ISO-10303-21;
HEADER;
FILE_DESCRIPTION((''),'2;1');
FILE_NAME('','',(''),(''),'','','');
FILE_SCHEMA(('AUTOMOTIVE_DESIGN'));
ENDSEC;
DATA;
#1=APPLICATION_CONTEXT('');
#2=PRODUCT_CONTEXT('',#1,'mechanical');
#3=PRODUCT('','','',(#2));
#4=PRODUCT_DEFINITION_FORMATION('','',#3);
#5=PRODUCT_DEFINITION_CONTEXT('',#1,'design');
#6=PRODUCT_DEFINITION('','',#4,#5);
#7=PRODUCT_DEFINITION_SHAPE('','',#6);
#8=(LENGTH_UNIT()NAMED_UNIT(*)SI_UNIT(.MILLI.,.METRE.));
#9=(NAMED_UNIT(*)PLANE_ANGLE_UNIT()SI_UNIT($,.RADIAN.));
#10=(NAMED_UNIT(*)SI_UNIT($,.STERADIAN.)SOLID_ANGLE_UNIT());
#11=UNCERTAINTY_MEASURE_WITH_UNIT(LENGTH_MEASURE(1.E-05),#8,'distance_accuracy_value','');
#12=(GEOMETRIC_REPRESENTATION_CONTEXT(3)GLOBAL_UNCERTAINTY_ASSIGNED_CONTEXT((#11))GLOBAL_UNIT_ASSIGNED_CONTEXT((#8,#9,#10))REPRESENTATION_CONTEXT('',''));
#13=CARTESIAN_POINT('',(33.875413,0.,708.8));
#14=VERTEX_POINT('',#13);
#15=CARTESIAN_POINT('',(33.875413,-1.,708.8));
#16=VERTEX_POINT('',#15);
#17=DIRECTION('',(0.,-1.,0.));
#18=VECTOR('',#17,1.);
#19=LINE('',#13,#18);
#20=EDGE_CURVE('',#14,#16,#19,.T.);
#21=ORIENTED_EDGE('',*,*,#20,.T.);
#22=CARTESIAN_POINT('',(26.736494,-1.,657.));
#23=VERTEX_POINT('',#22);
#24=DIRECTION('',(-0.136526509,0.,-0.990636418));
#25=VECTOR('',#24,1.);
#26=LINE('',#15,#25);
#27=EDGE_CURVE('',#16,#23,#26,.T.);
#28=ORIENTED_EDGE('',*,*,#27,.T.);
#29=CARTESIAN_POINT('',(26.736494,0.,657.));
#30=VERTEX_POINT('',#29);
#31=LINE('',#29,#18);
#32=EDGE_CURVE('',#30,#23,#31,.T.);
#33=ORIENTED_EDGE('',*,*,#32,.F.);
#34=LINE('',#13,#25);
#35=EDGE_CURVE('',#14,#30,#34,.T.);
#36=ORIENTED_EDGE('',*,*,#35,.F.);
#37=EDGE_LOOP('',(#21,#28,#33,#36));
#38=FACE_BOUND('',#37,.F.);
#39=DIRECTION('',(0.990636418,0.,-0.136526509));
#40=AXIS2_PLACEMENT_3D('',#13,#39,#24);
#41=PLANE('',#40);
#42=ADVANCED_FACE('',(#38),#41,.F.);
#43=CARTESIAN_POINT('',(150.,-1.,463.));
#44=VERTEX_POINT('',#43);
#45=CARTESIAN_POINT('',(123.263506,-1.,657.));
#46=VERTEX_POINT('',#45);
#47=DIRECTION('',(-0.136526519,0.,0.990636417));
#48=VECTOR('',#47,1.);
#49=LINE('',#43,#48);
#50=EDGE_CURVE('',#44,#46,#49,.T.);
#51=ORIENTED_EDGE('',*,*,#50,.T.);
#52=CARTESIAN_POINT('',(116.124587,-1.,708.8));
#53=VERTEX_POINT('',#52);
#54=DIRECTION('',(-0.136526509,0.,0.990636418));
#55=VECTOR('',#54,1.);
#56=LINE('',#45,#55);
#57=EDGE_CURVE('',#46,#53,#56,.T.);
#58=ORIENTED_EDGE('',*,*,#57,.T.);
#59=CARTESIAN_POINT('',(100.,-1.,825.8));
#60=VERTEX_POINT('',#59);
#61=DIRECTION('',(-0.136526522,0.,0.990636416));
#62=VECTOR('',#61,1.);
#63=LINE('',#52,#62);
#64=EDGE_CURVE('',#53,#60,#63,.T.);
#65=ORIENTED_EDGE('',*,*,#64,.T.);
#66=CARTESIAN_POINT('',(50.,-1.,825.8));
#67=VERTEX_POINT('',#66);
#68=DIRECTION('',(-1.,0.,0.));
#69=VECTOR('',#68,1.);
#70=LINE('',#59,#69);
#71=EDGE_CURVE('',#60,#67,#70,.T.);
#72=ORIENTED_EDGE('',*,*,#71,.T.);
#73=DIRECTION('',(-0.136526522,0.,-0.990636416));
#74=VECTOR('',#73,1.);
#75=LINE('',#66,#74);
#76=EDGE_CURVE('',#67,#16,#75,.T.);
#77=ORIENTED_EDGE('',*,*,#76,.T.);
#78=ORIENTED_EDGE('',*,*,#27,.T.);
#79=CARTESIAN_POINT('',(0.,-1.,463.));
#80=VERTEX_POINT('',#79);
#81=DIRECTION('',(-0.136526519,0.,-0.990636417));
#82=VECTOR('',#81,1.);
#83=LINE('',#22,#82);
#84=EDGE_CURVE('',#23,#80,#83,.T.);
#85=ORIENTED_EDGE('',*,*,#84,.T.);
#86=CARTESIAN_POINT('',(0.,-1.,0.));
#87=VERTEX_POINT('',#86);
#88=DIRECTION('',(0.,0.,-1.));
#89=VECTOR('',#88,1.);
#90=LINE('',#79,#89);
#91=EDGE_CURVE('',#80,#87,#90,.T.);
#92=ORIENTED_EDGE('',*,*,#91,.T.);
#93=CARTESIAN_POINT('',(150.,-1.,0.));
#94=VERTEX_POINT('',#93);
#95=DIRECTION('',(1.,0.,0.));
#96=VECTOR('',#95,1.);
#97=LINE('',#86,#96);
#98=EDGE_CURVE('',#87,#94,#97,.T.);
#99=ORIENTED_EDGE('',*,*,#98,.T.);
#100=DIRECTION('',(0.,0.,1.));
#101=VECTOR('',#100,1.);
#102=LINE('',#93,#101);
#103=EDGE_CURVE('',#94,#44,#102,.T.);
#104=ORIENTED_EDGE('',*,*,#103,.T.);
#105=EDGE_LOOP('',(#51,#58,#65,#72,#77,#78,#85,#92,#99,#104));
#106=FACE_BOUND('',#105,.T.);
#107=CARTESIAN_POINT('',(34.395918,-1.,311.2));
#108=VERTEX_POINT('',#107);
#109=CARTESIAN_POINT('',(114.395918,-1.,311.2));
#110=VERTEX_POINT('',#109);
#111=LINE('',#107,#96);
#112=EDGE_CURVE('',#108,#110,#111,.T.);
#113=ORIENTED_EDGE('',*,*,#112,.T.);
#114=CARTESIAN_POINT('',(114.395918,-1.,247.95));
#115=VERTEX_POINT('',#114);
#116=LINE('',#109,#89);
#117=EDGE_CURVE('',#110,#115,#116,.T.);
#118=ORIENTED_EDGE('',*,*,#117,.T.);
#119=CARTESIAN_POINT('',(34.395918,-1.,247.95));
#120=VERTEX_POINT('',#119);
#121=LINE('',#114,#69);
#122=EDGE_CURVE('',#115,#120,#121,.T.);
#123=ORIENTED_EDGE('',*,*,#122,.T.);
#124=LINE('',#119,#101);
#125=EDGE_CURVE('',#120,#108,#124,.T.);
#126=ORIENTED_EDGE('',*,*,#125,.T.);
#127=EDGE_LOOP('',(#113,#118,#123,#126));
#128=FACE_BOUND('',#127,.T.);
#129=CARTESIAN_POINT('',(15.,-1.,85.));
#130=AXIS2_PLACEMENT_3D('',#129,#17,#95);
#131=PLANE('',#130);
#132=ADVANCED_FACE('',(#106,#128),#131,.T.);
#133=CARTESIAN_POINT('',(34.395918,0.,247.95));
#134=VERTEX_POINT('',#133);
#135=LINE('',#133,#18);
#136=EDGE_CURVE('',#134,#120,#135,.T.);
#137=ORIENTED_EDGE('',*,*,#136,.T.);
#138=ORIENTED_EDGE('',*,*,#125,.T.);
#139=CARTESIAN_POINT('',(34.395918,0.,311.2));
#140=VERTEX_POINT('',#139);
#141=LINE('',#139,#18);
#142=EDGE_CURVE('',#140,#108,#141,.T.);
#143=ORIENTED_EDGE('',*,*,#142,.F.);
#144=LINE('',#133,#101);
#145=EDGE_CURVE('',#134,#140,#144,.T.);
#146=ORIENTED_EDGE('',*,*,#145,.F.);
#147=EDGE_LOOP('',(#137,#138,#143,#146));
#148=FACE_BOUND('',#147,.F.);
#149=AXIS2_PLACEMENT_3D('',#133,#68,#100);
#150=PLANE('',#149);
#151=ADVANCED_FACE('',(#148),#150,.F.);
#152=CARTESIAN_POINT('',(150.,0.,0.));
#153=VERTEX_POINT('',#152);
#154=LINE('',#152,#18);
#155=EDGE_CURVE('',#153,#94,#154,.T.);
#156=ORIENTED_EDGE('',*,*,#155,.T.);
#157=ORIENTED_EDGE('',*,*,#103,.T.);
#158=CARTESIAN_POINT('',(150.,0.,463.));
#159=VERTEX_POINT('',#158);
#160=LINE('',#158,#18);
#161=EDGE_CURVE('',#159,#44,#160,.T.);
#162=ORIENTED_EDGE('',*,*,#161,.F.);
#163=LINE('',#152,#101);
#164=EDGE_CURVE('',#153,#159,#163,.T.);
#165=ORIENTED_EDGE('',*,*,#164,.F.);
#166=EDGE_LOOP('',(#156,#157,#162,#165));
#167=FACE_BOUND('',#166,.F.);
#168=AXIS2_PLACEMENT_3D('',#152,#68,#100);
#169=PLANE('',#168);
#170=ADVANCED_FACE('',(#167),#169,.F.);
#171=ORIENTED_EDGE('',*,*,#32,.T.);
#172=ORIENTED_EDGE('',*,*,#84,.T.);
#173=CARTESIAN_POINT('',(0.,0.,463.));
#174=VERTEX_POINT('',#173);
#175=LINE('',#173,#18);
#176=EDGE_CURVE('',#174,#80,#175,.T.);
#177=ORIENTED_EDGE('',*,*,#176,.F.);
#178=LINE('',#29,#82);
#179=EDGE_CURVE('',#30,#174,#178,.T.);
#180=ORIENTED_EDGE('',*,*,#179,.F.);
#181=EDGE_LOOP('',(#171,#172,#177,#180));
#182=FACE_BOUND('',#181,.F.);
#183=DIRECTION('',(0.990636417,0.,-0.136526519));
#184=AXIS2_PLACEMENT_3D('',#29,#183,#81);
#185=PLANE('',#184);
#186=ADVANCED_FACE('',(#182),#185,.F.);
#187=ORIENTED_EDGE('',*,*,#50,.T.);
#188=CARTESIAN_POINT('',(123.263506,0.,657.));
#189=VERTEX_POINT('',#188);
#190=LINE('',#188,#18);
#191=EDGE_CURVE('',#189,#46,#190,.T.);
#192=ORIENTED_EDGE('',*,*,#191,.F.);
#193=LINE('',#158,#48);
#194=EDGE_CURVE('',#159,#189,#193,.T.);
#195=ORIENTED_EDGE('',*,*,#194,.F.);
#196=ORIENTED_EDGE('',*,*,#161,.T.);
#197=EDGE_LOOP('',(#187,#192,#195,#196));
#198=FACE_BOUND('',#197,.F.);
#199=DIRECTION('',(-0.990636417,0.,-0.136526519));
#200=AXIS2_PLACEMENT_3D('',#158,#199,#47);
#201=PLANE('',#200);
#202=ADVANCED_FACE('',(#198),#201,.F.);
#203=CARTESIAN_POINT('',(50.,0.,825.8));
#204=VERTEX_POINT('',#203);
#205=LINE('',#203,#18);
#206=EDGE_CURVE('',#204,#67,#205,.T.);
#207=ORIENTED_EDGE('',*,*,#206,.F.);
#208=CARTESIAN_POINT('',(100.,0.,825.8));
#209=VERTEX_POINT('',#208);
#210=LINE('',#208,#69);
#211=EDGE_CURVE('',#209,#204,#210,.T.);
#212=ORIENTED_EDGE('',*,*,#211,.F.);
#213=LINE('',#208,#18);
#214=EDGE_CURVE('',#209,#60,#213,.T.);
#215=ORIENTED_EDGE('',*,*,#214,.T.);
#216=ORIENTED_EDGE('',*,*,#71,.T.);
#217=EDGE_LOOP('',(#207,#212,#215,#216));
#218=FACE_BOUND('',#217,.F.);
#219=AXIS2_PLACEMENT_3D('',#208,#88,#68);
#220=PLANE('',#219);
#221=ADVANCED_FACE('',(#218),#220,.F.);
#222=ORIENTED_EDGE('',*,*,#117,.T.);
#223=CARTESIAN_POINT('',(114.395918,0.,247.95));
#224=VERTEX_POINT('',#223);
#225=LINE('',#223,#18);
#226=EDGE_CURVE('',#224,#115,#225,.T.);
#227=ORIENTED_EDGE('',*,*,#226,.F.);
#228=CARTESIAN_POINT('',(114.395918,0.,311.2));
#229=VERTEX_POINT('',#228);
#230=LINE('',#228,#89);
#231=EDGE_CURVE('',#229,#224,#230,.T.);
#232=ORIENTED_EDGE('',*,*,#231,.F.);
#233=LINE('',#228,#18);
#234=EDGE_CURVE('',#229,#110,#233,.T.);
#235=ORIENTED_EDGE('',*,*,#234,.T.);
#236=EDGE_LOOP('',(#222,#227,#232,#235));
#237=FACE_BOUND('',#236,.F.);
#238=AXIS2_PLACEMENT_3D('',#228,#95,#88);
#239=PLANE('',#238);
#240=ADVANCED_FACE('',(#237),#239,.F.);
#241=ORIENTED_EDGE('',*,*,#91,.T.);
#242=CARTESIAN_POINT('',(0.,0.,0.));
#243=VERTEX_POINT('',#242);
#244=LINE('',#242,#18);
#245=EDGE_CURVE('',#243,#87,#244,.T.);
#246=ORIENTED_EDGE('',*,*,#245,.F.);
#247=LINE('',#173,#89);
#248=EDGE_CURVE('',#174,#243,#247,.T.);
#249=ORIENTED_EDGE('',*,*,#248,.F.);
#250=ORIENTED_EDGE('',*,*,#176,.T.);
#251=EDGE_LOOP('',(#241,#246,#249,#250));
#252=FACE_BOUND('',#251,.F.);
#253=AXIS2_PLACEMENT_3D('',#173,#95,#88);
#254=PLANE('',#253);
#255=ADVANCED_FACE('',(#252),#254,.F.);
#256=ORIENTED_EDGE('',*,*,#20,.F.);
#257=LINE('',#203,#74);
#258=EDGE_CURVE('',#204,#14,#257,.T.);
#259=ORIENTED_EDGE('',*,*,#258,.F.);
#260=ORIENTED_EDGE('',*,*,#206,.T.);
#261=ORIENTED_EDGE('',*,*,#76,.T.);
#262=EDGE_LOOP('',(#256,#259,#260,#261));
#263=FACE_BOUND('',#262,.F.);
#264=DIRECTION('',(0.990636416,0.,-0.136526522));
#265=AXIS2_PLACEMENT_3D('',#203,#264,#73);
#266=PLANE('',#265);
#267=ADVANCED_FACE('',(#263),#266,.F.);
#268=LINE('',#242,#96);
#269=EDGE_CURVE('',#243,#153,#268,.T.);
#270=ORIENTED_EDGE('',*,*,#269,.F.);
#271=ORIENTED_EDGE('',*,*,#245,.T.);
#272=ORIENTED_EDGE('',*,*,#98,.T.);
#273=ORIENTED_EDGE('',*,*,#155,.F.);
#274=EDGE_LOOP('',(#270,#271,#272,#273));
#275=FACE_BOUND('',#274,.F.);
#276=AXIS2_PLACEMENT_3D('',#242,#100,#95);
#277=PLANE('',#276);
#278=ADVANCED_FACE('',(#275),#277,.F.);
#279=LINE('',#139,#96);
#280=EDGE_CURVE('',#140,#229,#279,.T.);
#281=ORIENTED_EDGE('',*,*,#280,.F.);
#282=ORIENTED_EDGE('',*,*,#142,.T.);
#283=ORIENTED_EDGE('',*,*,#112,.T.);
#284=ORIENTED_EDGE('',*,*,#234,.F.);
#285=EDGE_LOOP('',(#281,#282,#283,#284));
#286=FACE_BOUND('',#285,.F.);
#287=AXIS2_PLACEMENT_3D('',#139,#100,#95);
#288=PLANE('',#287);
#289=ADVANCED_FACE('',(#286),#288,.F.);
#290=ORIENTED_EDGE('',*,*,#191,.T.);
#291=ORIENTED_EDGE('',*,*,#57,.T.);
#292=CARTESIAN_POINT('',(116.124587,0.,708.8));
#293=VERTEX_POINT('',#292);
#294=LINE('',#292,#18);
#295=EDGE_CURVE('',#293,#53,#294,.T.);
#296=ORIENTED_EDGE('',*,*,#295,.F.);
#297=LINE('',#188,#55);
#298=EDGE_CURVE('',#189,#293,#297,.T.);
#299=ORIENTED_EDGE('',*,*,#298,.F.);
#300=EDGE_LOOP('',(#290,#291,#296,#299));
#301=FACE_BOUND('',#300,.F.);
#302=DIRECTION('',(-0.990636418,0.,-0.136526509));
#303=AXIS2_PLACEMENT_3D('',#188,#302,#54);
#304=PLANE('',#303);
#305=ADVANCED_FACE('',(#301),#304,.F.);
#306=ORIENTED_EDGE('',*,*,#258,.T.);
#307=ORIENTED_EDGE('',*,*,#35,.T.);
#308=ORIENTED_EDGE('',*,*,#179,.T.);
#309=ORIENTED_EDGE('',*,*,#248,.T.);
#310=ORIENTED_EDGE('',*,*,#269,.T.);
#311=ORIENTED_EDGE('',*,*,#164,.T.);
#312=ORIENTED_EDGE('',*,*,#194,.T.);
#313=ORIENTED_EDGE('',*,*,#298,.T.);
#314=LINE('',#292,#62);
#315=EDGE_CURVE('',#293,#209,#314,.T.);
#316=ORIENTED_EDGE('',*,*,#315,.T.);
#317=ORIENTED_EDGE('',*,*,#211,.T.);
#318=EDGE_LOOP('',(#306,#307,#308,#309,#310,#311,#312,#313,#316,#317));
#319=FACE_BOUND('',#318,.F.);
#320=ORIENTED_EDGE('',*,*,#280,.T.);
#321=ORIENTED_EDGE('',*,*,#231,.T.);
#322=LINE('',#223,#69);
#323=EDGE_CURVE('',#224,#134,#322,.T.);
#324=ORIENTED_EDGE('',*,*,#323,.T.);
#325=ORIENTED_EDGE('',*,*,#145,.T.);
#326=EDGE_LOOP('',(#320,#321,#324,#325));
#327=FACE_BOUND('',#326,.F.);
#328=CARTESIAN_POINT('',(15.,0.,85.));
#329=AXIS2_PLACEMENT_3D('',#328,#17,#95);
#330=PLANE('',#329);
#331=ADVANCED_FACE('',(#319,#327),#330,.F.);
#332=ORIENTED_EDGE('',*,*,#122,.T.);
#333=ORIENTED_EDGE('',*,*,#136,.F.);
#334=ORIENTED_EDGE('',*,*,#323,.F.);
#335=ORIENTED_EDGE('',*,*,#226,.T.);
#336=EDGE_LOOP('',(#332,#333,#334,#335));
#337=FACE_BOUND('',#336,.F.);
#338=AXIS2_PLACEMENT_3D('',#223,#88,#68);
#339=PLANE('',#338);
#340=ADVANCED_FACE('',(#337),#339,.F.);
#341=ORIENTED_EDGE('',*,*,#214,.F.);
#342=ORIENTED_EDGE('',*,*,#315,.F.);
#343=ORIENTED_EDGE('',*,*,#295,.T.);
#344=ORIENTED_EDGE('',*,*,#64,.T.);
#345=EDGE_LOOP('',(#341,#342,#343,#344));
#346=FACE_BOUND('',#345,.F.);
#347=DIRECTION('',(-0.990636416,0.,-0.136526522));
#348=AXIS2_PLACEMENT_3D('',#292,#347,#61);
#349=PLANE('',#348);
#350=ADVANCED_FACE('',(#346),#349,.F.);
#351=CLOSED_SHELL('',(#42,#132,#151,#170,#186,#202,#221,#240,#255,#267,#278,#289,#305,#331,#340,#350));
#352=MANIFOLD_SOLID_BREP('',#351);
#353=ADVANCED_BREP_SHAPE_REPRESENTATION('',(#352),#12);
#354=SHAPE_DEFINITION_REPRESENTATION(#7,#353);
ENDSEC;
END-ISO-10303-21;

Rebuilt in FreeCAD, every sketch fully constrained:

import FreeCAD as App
import Part
import Sketcher
from FreeCAD import Vector
Q = App.Units.Quantity

doc = App.newDocument("Part")
body = doc.addObject("PartDesign::Body", "Body")

# Sketch on XZ plane
sketch1 = body.newObject("Sketcher::SketchObject", "Sketch")
sketch1.AttachmentSupport = (doc.getObject("XZ_Plane"), [""])
sketch1.MapMode = "FlatFace"
sketch1.addGeometry(Part.LineSegment(Vector(0, 0, 0), Vector(150, 0, 0)), False)
sketch1.addGeometry(Part.LineSegment(Vector(150, 0, 0), Vector(150, 463, 0)), False)
sketch1.addGeometry(Part.LineSegment(Vector(150, 463, 0), Vector(123, 657, 0)), False)
sketch1.addGeometry(Part.LineSegment(Vector(123, 657, 0), Vector(116, 709, 0)), False)
sketch1.addGeometry(Part.LineSegment(Vector(116, 709, 0), Vector(100, 826, 0)), False)
sketch1.addGeometry(Part.LineSegment(Vector(100, 826, 0), Vector(50, 826, 0)), False)
sketch1.addGeometry(Part.LineSegment(Vector(50, 826, 0), Vector(34, 709, 0)), False)
sketch1.addGeometry(Part.LineSegment(Vector(34, 709, 0), Vector(27, 657, 0)), False)
sketch1.addGeometry(Part.LineSegment(Vector(27, 657, 0), Vector(0, 463, 0)), False)
sketch1.addGeometry(Part.LineSegment(Vector(0, 463, 0), Vector(0, 0, 0)), False)
sketch1.addGeometry(Part.LineSegment(Vector(114, 248, 0), Vector(34, 248, 0)), False)
sketch1.addGeometry(Part.LineSegment(Vector(34, 248, 0), Vector(34, 311, 0)), False)
sketch1.addGeometry(Part.LineSegment(Vector(34, 311, 0), Vector(114, 311, 0)), False)
sketch1.addGeometry(Part.LineSegment(Vector(114, 311, 0), Vector(114, 248, 0)), False)
sketch1.addConstraint(Sketcher.Constraint("Coincident", 0, 2, 1, 1))
sketch1.addConstraint(Sketcher.Constraint("Coincident", 1, 2, 2, 1))
sketch1.addConstraint(Sketcher.Constraint("Coincident", 2, 2, 3, 1))
sketch1.addConstraint(Sketcher.Constraint("Coincident", 3, 2, 4, 1))
sketch1.addConstraint(Sketcher.Constraint("Coincident", 4, 2, 5, 1))
sketch1.addConstraint(Sketcher.Constraint("Coincident", 5, 2, 6, 1))
sketch1.addConstraint(Sketcher.Constraint("Coincident", 6, 2, 7, 1))
sketch1.addConstraint(Sketcher.Constraint("Coincident", 7, 2, 8, 1))
sketch1.addConstraint(Sketcher.Constraint("Coincident", 8, 2, 9, 1))
sketch1.addConstraint(Sketcher.Constraint("Coincident", 9, 2, 0, 1))
sketch1.addConstraint(Sketcher.Constraint("Coincident", 10, 2, 11, 1))
sketch1.addConstraint(Sketcher.Constraint("Coincident", 11, 2, 12, 1))
sketch1.addConstraint(Sketcher.Constraint("Coincident", 12, 2, 13, 1))
sketch1.addConstraint(Sketcher.Constraint("Coincident", 13, 2, 10, 1))
sketch1.addConstraint(Sketcher.Constraint("Horizontal", 0))
sketch1.addConstraint(Sketcher.Constraint("Vertical", 1))
sketch1.addConstraint(Sketcher.Constraint("Horizontal", 5))
sketch1.addConstraint(Sketcher.Constraint("Vertical", 9))
sketch1.addConstraint(Sketcher.Constraint("Horizontal", 10))
sketch1.addConstraint(Sketcher.Constraint("Vertical", 11))
sketch1.addConstraint(Sketcher.Constraint("Horizontal", 12))
sketch1.addConstraint(Sketcher.Constraint("Vertical", 13))
sketch1.addConstraint(Sketcher.Constraint("Coincident", 9, 2, -1, 1))
sketch1.addConstraint(Sketcher.Constraint("Parallel", 2, 3))
sketch1.addConstraint(Sketcher.Constraint("Parallel", 3, 4))
sketch1.addConstraint(Sketcher.Constraint("Parallel", 6, 7))
sketch1.addConstraint(Sketcher.Constraint("Parallel", 7, 8))
sketch1.addConstraint(Sketcher.Constraint("Horizontal", 3, 2, 6, 2))
sketch1.addConstraint(Sketcher.Constraint("Horizontal", 2, 2, 7, 2))
sketch1.addConstraint(Sketcher.Constraint("Horizontal", 1, 2, 8, 2))
sketch1.addConstraint(Sketcher.Constraint("Equal", 4, 6))
sketch1.addConstraint(Sketcher.Constraint("DistanceX", 0, 1, 0, 2, Q("150 mm")))
sketch1.addConstraint(Sketcher.Constraint("DistanceX", 5, 2, 5, 1, Q("50 mm")))
sketch1.addConstraint(Sketcher.Constraint("DistanceX", 10, 2, 10, 1, Q("80 mm")))
sketch1.addConstraint(Sketcher.Constraint("DistanceY", 1, 1, 1, 2, Q("463 mm")))
sketch1.addConstraint(Sketcher.Constraint("DistanceY", -1, 1, 2, 2, Q("657 mm")))
sketch1.addConstraint(Sketcher.Constraint("DistanceY", 3, 2, 4, 2, Q("117 mm")))
sketch1.addConstraint(Sketcher.Constraint("DistanceY", 11, 1, 11, 2, Q("63.25 mm")))
sketch1.addConstraint(Sketcher.Constraint("DistanceY", -1, 1, 3, 2, Q("708.8 mm")))
sketch1.addConstraint(Sketcher.Constraint("DistanceY", -1, 1, 11, 2, Q("311.2 mm")))
sketch1.addConstraint(Sketcher.Constraint("DistanceX", -1, 1, 10, 2, Q("34.395918 mm")))
pad1 = body.newObject("PartDesign::Pad", "Pad")
pad1.Profile = sketch1
pad1.Length = 1

doc.recompute()
